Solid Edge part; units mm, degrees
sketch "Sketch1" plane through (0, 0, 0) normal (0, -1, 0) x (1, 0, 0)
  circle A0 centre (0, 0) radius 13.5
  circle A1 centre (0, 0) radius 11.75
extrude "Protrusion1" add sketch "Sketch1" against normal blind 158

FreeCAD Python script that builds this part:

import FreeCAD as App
import Part
import Sketcher

doc = App.newDocument("Part")
params = doc.addObject("Spreadsheet::Sheet", "Params")
for row, (alias, value) in enumerate([
    ("sketch1_diameter", "27 mm"),
    ("sketch1_diameter2", "23.5 mm"),
    ("pad1_length", "158 mm"),
], start=1):
    params.set(f"A{row}", alias)
    params.set(f"B{row}", "=" + value)
    params.setAlias(f"B{row}", alias)

body = doc.addObject("PartDesign::Body", "Body")

sketch1 = body.newObject("Sketcher::SketchObject", "Sketch")
sketch1.AttachmentSupport = (doc.getObject("XZ_Plane"), [""])
sketch1.MapMode = "FlatFace"
sketch1.addGeometry([
    Part.Circle(App.Vector(0, 0, 0), App.Vector(0, 0, 1), 14),
    Part.Circle(App.Vector(0, 0, 0), App.Vector(0, 0, 1), 12),
], False)
sketch1.addConstraint([
    Sketcher.Constraint("Coincident", 0, 3, -1, 1),
    Sketcher.Constraint("Coincident", 1, 3, -1, 1),
    Sketcher.Constraint("Diameter", 0, 27.0),
    Sketcher.Constraint("Diameter", 1, 23.5),
])
sketch1.setExpression("Constraints[2]", "Params.sketch1_diameter")
sketch1.setExpression("Constraints[3]", "Params.sketch1_diameter2")
pad1 = body.newObject("PartDesign::Pad", "Pad")
pad1.Profile = sketch1
pad1.setExpression("Length", "Params.pad1_length")
pad1.Reversed = True

doc.recompute()
